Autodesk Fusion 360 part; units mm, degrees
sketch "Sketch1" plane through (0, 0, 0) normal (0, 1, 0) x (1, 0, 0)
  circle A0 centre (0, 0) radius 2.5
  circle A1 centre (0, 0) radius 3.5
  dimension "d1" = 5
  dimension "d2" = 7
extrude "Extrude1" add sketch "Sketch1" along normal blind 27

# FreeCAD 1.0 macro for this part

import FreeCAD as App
import Part
import Sketcher
from FreeCAD import Vector
Q = App.Units.Quantity

doc = App.newDocument("Part")
params = doc.addObject("Spreadsheet::Sheet", "Params")
for row, (alias, value) in enumerate([
    ("sketch1_diameter", "7 mm"),
    ("sketch1_diameter2", "5 mm"),
    ("pad1_length", "27 mm"),
], start=1):
    params.set(f"A{row}", alias)
    params.set(f"B{row}", "=" + value)
    params.setAlias(f"B{row}", alias)

body = doc.addObject("PartDesign::Body", "Body")

sketch1 = body.newObject("Sketcher::SketchObject", "Sketch")
sketch1.AttachmentSupport = (doc.getObject("XZ_Plane"), [""])
sketch1.MapMode = "FlatFace"
sketch1.addGeometry([
    Part.Circle(Vector(0, 0, 0), Vector(0, 0, 1), 3.5),
    Part.Circle(Vector(0, 0, 0), Vector(0, 0, 1), 2.5),
], False)
sketch1.addConstraint([
    Sketcher.Constraint("Coincident", 0, 3, -1, 1),
    Sketcher.Constraint("Coincident", 1, 3, -1, 1),
    Sketcher.Constraint("Diameter", 0, Q("7 mm")),
    Sketcher.Constraint("Diameter", 1, Q("5 mm")),
])
sketch1.setExpression("Constraints[2]", "Params.sketch1_diameter")
sketch1.setExpression("Constraints[3]", "Params.sketch1_diameter2")
pad1 = body.newObject("PartDesign::Pad", "Pad")
pad1.Profile = sketch1
pad1.setExpression("Length", "Params.pad1_length")
pad1.Reversed = True

doc.recompute()
